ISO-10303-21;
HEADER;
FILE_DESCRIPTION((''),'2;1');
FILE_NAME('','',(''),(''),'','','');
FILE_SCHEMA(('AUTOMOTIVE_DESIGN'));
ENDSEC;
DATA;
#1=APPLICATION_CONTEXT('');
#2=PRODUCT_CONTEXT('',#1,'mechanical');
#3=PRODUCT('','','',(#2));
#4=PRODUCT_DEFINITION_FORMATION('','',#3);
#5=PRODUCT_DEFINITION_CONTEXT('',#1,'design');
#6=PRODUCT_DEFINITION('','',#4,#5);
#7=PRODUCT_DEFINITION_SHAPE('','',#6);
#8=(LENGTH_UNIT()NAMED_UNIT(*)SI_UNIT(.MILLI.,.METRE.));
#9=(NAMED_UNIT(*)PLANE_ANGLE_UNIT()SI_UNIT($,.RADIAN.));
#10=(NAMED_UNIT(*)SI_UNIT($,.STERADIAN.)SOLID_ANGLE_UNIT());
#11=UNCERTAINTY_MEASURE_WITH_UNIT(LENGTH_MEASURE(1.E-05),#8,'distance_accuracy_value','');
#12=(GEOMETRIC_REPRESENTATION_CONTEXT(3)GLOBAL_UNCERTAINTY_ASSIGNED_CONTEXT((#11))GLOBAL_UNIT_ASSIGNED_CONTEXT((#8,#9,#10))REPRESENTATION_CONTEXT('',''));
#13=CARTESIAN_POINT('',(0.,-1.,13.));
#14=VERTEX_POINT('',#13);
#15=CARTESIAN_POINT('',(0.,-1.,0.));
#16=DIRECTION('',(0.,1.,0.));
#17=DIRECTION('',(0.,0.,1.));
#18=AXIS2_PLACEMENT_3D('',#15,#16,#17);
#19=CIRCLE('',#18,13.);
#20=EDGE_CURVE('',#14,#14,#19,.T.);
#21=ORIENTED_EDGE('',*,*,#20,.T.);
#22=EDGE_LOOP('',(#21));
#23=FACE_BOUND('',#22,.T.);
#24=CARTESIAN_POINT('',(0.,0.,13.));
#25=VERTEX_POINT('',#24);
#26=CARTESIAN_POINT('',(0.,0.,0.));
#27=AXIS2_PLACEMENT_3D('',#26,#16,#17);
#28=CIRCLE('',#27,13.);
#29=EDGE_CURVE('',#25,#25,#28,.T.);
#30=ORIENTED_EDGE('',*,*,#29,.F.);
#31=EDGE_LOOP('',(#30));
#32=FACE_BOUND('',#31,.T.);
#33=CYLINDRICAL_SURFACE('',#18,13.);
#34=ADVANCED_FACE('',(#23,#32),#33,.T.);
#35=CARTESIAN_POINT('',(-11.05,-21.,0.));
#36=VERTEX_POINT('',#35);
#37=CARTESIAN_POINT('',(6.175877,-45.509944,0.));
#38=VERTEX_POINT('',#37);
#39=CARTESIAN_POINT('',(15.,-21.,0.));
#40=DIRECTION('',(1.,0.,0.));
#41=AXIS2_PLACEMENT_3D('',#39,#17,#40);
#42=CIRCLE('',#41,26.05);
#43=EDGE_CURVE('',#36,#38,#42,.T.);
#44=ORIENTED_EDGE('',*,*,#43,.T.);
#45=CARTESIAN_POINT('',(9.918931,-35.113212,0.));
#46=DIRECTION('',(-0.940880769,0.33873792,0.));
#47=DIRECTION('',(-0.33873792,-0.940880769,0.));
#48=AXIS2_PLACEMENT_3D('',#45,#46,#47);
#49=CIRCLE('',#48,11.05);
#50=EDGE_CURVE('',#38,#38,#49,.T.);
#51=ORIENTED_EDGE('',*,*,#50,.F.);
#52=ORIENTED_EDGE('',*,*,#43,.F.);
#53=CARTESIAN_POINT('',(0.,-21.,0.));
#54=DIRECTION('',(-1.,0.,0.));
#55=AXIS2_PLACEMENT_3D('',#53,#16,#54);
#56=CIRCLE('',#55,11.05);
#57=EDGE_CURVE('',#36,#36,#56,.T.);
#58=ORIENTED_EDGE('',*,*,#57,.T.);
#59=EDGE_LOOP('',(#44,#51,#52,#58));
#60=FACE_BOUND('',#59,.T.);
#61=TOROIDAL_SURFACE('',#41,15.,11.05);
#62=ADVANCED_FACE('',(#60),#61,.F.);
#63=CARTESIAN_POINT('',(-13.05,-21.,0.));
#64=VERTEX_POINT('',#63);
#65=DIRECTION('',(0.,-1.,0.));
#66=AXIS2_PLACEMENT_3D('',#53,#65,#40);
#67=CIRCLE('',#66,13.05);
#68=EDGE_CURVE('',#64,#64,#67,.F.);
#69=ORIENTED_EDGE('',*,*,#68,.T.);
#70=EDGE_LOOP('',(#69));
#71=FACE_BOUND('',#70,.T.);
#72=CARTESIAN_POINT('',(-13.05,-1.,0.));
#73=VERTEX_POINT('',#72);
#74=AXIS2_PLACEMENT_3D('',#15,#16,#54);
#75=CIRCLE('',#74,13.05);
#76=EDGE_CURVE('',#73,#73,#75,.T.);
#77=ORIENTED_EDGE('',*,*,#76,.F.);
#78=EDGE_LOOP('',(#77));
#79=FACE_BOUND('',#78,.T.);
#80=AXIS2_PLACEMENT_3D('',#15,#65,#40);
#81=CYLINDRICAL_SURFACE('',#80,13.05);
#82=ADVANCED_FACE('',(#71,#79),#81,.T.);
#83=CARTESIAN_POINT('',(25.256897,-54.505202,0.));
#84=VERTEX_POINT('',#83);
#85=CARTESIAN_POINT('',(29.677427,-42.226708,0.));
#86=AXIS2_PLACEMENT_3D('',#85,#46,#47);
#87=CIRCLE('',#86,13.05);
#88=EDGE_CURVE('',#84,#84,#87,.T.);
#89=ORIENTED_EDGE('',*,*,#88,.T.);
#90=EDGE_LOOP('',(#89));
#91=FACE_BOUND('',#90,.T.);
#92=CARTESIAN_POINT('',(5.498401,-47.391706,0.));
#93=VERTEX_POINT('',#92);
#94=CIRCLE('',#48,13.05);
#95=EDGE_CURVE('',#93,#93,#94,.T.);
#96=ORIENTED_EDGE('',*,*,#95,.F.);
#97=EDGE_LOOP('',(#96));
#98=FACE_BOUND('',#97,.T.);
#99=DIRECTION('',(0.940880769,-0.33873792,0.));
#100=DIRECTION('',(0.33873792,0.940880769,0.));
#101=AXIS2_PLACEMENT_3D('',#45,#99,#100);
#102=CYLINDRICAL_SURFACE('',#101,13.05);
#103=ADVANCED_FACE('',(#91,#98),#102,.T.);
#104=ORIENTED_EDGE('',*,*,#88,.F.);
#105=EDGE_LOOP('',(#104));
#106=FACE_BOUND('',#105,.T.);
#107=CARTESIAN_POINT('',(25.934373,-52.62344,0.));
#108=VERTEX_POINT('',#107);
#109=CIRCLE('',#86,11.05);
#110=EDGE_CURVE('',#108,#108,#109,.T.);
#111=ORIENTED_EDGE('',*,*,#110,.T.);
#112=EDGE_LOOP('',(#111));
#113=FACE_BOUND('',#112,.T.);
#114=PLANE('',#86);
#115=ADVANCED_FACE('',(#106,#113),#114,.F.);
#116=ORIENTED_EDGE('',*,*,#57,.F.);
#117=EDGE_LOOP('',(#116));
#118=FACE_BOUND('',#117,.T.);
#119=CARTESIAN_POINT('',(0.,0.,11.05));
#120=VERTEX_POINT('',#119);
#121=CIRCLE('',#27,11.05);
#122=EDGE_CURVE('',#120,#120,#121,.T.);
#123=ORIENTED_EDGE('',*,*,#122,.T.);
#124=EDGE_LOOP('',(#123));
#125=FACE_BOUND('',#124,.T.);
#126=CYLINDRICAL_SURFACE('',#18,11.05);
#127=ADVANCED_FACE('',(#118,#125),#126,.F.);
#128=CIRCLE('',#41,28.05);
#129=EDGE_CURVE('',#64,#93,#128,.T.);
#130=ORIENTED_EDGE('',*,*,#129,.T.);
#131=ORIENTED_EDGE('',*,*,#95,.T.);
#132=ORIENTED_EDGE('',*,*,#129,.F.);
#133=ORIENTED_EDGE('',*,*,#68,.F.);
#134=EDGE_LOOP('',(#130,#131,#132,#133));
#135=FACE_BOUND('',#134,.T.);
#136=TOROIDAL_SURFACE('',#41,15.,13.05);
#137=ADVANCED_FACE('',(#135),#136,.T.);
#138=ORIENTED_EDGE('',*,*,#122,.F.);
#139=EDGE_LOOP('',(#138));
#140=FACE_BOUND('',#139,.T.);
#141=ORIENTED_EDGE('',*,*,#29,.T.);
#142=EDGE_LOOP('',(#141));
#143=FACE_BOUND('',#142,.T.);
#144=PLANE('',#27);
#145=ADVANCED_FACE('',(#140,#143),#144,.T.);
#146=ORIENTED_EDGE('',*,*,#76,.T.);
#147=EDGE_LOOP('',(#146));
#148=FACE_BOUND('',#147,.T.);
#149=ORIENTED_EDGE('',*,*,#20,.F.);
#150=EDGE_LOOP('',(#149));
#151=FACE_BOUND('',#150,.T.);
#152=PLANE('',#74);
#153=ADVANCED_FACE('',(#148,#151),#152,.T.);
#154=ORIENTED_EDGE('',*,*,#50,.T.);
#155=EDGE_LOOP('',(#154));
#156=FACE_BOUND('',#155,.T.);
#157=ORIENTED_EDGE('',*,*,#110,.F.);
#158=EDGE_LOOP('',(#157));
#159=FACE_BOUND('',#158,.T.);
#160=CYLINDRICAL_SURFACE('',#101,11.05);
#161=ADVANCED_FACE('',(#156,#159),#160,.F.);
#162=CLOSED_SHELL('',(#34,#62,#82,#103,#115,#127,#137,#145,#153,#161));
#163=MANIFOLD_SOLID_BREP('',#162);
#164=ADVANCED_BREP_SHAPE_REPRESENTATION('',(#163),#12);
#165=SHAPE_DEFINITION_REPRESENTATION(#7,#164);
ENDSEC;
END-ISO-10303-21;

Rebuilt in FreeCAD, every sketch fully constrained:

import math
import FreeCAD as App
import Part
import Sketcher

V = App.Vector
Q = App.Units.Quantity

doc = App.newDocument("Part")
body = doc.addObject("PartDesign::Body", "Body")

# Sketch on XZ plane
sketch1 = body.newObject("Sketcher::SketchObject", "Sketch")
sketch1.AttachmentSupport = (doc.getObject("XZ_Plane"), [""])
sketch1.MapMode = "FlatFace"
sketch1.addGeometry(Part.Circle(V(0, 0, 0), V(0, 0, 1), 13), False)
sketch1.addGeometry(Part.Circle(V(0, 0, 0), V(0, 0, 1), 11.05), False)
sketch1.addConstraint(Sketcher.Constraint("Coincident", 0, 3, -1, 1))
sketch1.addConstraint(Sketcher.Constraint("Coincident", 1, 3, -1, 1))
sketch1.addConstraint(Sketcher.Constraint("Diameter", 0, 26.0))
sketch1.addConstraint(Sketcher.Constraint("Diameter", 1, 22.1))
pad1 = body.newObject("PartDesign::Pad", "Pad")
pad1.Profile = sketch1
pad1.Length = 1

# Sketch on XZ plane
sketch2 = body.newObject("Sketcher::SketchObject", "Sketch001")
sketch2.AttachmentSupport = (doc.getObject("XZ_Plane"), [""])
sketch2.MapMode = "FlatFace"
sketch2.AttachmentOffset = App.Placement(V(0, 0, 1), App.Rotation())
sketch2.addGeometry(Part.Circle(V(0, 0, 0), V(0, 0, 1), 13.05), False)
sketch2.addGeometry(Part.Circle(V(0, 0, 0), V(0, 0, 1), 11.05), False)
sketch2.addConstraint(Sketcher.Constraint("Coincident", 0, 3, -1, 1))
sketch2.addConstraint(Sketcher.Constraint("Coincident", 1, 3, -1, 1))
sketch2.addConstraint(Sketcher.Constraint("Diameter", 0, 26.1))
sketch2.addConstraint(Sketcher.Constraint("Diameter", 1, 22.1))

# Sketch on XY plane
sketch3 = body.newObject("Sketcher::SketchObject", "Sketch002")
sketch3.AttachmentSupport = (doc.getObject("XY_Plane"), [""])
sketch3.MapMode = "FlatFace"
sketch3.addGeometry(Part.LineSegment(V(0, -1, 0), V(0, -21, 0)), False)
sketch3.addGeometry(Part.ArcOfCircle(Part.Circle(V(15, -21, 0), V(0, 0, 1), 15), math.radians(180), math.radians(250.2)), False)
sketch3.addGeometry(Part.LineSegment(V(9.918931, -35.113212, 0), V(29.677427, -42.226708, 0)), False)
sketch3.addConstraint(Sketcher.Constraint("Tangent", 0, 2, 1, 1))
sketch3.addConstraint(Sketcher.Constraint("Tangent", 1, 2, 2, 1))
sketch3.addConstraint(Sketcher.Constraint("Vertical", 0))
sketch3.addConstraint(Sketcher.Constraint("PointOnObject", 0, 1, -2))
sketch3.addConstraint(Sketcher.Constraint("Radius", 1, 15.0))
sketch3.addConstraint(Sketcher.Constraint("DistanceY", 0, 2, 0, 1, 20.0))
sketch3.addConstraint(Sketcher.Constraint("Distance", 2, 21.0))
sketch3.addConstraint(Sketcher.Constraint("DistanceY", 1, 3, -1, 1, 21.0))
sketch3.addConstraint(Sketcher.Constraint("Angle", 2, Q("-19.8 deg")))
doc.recompute()

additivepipe = body.newObject("PartDesign::AdditivePipe", "AdditivePipe")
additivepipe.Profile = sketch2
additivepipe.Spine = (sketch3, ["Edge1", "Edge2", "Edge3"])

doc.recompute()
